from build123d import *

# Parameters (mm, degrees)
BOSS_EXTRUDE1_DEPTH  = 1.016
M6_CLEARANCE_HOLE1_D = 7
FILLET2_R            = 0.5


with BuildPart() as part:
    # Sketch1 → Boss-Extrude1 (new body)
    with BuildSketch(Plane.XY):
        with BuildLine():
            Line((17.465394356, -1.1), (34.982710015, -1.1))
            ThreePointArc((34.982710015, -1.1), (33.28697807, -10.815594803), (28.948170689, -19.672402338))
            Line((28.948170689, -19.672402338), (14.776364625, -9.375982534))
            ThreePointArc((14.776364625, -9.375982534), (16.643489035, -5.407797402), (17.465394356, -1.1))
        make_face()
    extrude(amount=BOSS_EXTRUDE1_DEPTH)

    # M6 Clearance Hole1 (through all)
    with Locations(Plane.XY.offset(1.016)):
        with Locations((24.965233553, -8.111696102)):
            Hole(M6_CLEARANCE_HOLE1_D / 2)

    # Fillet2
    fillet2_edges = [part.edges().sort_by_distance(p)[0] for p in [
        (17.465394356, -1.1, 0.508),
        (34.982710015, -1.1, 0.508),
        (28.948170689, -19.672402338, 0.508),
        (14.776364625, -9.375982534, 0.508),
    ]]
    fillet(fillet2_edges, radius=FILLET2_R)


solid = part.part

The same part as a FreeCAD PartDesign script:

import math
import FreeCAD as App
import Part
import Sketcher
from FreeCAD import Vector
Q = App.Units.Quantity


def edges_at(feature, points):
    """Names of the edges that pass closest to the given points."""
    edges = feature.Shape.Edges
    near = lambda p: min(range(len(edges)), key=lambda i: edges[i].distToShape(Part.Vertex(*p))[0])
    return sorted({f"Edge{near(p) + 1}" for p in points})

doc = App.newDocument("Part")
params = doc.addObject("Spreadsheet::Sheet", "Params")
for row, (alias, value) in enumerate([
    ("sketch1_radius", "35 mm"),
    ("sketch1_radius2", "17.5 mm"),
    ("pad1_length", "1.016 mm"),
    ("sketch2_diameter", "7 mm"),
    ("hole_diameter", "7 mm"),
    ("fillet_radius", "0.5 mm"),
], start=1):
    params.set(f"A{row}", alias)
    params.set(f"B{row}", "=" + value)
    params.setAlias(f"B{row}", alias)

body = doc.addObject("PartDesign::Body", "Body")

# Sketch on XY plane
sketch1 = body.newObject("Sketcher::SketchObject", "Sketch")
sketch1.AttachmentSupport = (doc.getObject("XY_Plane"), [""])
sketch1.MapMode = "FlatFace"
sketch1.addGeometry(Part.LineSegment(Vector(34.98271, -1.1, 0), Vector(17.465394, -1.1, 0)), False)
sketch1.addGeometry(Part.ArcOfCircle(Part.Circle(Vector(0, 0, 0), Vector(0, 0, 1), 17.5), math.radians(-32.396175), math.radians(-3.603825)), False)
sketch1.addGeometry(Part.LineSegment(Vector(14.776365, -9.375983, 0), Vector(28.948171, -19.672402, 0)), False)
sketch1.addGeometry(Part.ArcOfCircle(Part.Circle(Vector(0, 0, 0), Vector(0, 0, 1), 35), math.radians(-34.198979), math.radians(-1.801021)), False)
sketch1.addConstraint(Sketcher.Constraint("Coincident", 0, 2, 1, 2))
sketch1.addConstraint(Sketcher.Constraint("Coincident", 1, 1, 2, 1))
sketch1.addConstraint(Sketcher.Constraint("Coincident", 2, 2, 3, 1))
sketch1.addConstraint(Sketcher.Constraint("Coincident", 3, 2, 0, 1))
sketch1.addConstraint(Sketcher.Constraint("Horizontal", 0))
sketch1.addConstraint(Sketcher.Constraint("Coincident", 1, 3, -1, 1))
sketch1.addConstraint(Sketcher.Constraint("Coincident", 3, 3, -1, 1))
sketch1.addConstraint(Sketcher.Constraint("Radius", 3, Q("35 mm")))
sketch1.addConstraint(Sketcher.Constraint("Radius", 1, Q("17.5 mm")))
sketch1.addConstraint(Sketcher.Constraint("Angle", 2, Q("-36 deg")))
sketch1.addConstraint(Sketcher.Constraint("DistanceY", 0, 2, -1, 1, Q("1.1 mm")))
sketch1.addConstraint(Sketcher.Constraint("DistanceX", -1, 1, 2, 2, Q("28.948171 mm")))
sketch1.setExpression("Constraints[7]", "Params.sketch1_radius")
sketch1.setExpression("Constraints[8]", "Params.sketch1_radius2")
pad1 = body.newObject("PartDesign::Pad", "Pad")
pad1.Profile = sketch1
pad1.setExpression("Length", "Params.pad1_length")

# Sketch on XY plane
sketch2 = body.newObject("Sketcher::SketchObject", "Sketch001")
sketch2.AttachmentSupport = (doc.getObject("XY_Plane"), [""])
sketch2.MapMode = "FlatFace"
sketch2.AttachmentOffset = App.Placement(Vector(0, 0, 1.016), App.Rotation())
sketch2.addGeometry(Part.Circle(Vector(24.965234, -8.111696, 0), Vector(0, 0, 1), 3.5), False)
sketch2.addConstraint(Sketcher.Constraint("Diameter", 0, Q("7 mm")))
sketch2.addConstraint(Sketcher.Constraint("DistanceX", -1, 1, 0, 3, Q("24.965234 mm")))
sketch2.addConstraint(Sketcher.Constraint("DistanceY", 0, 3, -1, 1, Q("8.111696 mm")))
sketch2.setExpression("Constraints[0]", "Params.sketch2_diameter")
doc.recompute()
hole = body.newObject("PartDesign::Hole", "Hole")
hole.Profile = sketch2
hole.ThreadType = "None"
hole.setExpression("Diameter", "Params.hole_diameter")
hole.DepthType = "ThroughAll"
doc.recompute()

fillet = body.newObject("PartDesign::Fillet", "Fillet")
fillet.Base = (hole, edges_at(hole, [
    (17.465, -1.1, 0.508),
    (34.983, -1.1, 0.508),
    (28.948, -19.672, 0.508),
    (14.776, -9.376, 0.508),
]))
fillet.setExpression("Radius", "Params.fillet_radius")

doc.recompute()
